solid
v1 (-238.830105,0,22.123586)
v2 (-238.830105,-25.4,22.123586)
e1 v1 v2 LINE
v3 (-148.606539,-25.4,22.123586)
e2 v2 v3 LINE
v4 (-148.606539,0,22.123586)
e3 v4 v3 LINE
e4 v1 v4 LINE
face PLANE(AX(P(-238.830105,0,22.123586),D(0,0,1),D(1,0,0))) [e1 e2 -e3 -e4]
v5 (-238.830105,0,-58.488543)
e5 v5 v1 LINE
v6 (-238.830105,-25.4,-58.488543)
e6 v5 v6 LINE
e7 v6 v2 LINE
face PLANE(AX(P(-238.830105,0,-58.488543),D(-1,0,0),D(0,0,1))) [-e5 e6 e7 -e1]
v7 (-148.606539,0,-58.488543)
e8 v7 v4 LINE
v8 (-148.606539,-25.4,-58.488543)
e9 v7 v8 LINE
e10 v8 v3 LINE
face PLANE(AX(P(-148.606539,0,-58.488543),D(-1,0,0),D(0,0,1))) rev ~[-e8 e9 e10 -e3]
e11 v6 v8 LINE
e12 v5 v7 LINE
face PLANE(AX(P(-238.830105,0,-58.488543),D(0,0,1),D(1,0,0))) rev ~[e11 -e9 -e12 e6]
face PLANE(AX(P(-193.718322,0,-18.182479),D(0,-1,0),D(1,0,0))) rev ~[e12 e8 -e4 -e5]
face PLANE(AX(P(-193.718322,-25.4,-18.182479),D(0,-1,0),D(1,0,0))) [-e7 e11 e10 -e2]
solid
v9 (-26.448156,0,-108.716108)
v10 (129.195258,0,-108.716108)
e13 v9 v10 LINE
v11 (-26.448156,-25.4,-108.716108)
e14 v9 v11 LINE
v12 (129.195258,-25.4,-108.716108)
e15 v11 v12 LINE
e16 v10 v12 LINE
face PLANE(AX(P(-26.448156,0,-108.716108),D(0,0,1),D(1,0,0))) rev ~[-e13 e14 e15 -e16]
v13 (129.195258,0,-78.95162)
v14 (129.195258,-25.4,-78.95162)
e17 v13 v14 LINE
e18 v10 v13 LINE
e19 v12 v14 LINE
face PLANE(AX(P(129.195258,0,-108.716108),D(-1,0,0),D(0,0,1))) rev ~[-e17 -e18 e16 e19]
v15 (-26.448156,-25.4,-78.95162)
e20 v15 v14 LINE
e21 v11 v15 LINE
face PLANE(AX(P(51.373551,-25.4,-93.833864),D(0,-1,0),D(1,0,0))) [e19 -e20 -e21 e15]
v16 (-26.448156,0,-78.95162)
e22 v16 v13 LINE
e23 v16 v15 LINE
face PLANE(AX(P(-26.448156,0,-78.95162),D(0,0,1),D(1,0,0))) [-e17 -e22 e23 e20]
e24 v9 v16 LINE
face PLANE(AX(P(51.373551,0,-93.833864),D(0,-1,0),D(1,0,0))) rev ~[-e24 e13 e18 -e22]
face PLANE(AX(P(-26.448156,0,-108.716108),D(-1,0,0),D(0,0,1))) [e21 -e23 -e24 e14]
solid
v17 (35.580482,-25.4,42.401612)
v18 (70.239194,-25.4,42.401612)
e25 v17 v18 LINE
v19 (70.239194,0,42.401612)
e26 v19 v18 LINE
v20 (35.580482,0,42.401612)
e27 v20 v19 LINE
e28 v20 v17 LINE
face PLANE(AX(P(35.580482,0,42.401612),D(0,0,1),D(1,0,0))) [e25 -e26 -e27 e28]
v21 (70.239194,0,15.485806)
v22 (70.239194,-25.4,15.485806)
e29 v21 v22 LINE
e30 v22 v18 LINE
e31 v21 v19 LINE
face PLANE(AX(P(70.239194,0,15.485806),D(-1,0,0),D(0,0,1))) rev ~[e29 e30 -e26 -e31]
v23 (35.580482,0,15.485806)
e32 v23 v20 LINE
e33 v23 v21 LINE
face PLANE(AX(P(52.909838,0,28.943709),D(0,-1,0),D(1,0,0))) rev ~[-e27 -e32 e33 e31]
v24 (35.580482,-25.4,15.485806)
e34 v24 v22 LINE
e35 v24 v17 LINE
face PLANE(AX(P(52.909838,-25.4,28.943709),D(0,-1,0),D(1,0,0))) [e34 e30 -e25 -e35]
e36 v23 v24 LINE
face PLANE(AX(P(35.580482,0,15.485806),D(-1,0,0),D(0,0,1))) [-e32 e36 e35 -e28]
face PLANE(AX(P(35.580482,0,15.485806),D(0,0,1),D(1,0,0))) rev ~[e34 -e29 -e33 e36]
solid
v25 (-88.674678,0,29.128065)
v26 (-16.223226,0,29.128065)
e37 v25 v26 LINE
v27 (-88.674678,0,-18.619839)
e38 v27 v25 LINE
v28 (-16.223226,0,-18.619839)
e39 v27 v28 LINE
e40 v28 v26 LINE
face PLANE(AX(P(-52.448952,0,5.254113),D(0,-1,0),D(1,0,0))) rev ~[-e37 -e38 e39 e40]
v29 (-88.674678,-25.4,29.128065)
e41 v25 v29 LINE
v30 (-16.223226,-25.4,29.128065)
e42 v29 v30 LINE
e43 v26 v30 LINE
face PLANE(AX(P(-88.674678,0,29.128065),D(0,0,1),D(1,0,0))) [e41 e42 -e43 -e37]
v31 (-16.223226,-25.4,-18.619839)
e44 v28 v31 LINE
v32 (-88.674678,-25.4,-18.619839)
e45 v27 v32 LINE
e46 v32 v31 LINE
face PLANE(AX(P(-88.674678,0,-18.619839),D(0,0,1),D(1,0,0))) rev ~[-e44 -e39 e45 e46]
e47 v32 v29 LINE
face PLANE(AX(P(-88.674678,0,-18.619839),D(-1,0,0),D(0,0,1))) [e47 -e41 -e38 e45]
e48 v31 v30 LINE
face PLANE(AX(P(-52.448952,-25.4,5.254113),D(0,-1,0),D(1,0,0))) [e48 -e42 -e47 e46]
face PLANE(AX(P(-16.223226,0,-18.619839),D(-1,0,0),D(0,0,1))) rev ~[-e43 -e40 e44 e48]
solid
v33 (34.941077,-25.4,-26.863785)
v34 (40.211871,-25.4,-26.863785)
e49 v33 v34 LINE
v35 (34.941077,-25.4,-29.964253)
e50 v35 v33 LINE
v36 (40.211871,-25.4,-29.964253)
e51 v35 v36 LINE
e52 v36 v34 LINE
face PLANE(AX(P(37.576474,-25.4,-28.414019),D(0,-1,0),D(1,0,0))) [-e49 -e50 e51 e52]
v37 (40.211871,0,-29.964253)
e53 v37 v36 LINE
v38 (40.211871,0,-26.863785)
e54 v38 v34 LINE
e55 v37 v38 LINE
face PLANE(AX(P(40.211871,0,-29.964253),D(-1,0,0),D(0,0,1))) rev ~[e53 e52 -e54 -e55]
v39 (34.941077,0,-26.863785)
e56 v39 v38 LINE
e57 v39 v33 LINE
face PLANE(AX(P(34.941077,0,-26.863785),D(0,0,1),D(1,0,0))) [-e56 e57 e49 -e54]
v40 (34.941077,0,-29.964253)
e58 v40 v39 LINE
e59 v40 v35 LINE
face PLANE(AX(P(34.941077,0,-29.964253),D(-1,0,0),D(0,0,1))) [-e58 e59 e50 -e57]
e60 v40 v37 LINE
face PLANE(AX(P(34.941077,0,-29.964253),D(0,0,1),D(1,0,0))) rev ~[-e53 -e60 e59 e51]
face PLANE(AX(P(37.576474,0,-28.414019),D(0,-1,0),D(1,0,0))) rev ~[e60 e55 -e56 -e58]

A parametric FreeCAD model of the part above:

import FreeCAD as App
import Part
import Sketcher
Q = App.Units.Quantity

doc = App.newDocument("Part")
body = doc.addObject("PartDesign::Body", "Body")
body.AllowCompound = True

# Sketch on XZ plane
sketch1 = doc.addObject("Sketcher::SketchObject", "Sketch")
body.addObject(sketch1)
sketch1.AttachmentSupport = (doc.XZ_Plane, [""])
sketch1.MapMode = "FlatFace"
sketch1.addGeometry(Part.LineSegment(App.Vector(-88.7, 29.1, 0), App.Vector(-88.7, -18.6, 0)), False)
sketch1.addGeometry(Part.LineSegment(App.Vector(-88.7, -18.6, 0), App.Vector(-16.2, -18.6, 0)), False)
sketch1.addGeometry(Part.LineSegment(App.Vector(-16.2, -18.6, 0), App.Vector(-16.2, 29.1, 0)), False)
sketch1.addGeometry(Part.LineSegment(App.Vector(-16.2, 29.1, 0), App.Vector(-88.7, 29.1, 0)), False)
sketch1.addGeometry(Part.LineSegment(App.Vector(35.6, 42.4, 0), App.Vector(35.6, 15.5, 0)), False)
sketch1.addGeometry(Part.LineSegment(App.Vector(35.6, 15.5, 0), App.Vector(70.2, 15.5, 0)), False)
sketch1.addGeometry(Part.LineSegment(App.Vector(70.2, 15.5, 0), App.Vector(70.2, 42.4, 0)), False)
sketch1.addGeometry(Part.LineSegment(App.Vector(70.2, 42.4, 0), App.Vector(35.6, 42.4, 0)), False)
sketch1.addGeometry(Part.LineSegment(App.Vector(-238.8, 22.1, 0), App.Vector(-238.8, -58.5, 0)), False)
sketch1.addGeometry(Part.LineSegment(App.Vector(-238.8, -58.5, 0), App.Vector(-148.6, -58.5, 0)), False)
sketch1.addGeometry(Part.LineSegment(App.Vector(-148.6, -58.5, 0), App.Vector(-148.6, 22.1, 0)), False)
sketch1.addGeometry(Part.LineSegment(App.Vector(-148.6, 22.1, 0), App.Vector(-238.8, 22.1, 0)), False)
sketch1.addGeometry(Part.LineSegment(App.Vector(34.9, -26.9, 0), App.Vector(34.9, -30, 0)), False)
sketch1.addGeometry(Part.LineSegment(App.Vector(34.9, -30, 0), App.Vector(40.2, -30, 0)), False)
sketch1.addGeometry(Part.LineSegment(App.Vector(40.2, -30, 0), App.Vector(40.2, -26.9, 0)), False)
sketch1.addGeometry(Part.LineSegment(App.Vector(40.2, -26.9, 0), App.Vector(34.9, -26.9, 0)), False)
sketch1.addGeometry(Part.LineSegment(App.Vector(-26.4, -79, 0), App.Vector(-26.4, -108.7, 0)), False)
sketch1.addGeometry(Part.LineSegment(App.Vector(-26.4, -108.7, 0), App.Vector(129.2, -108.7, 0)), False)
sketch1.addGeometry(Part.LineSegment(App.Vector(129.2, -108.7, 0), App.Vector(129.2, -79, 0)), False)
sketch1.addGeometry(Part.LineSegment(App.Vector(129.2, -79, 0), App.Vector(-26.4, -79, 0)), False)
sketch1.addConstraint(Sketcher.Constraint("Coincident", 0, 2, 1, 1))
sketch1.addConstraint(Sketcher.Constraint("Coincident", 1, 2, 2, 1))
sketch1.addConstraint(Sketcher.Constraint("Coincident", 2, 2, 3, 1))
sketch1.addConstraint(Sketcher.Constraint("Coincident", 3, 2, 0, 1))
sketch1.addConstraint(Sketcher.Constraint("Coincident", 4, 2, 5, 1))
sketch1.addConstraint(Sketcher.Constraint("Coincident", 5, 2, 6, 1))
sketch1.addConstraint(Sketcher.Constraint("Coincident", 6, 2, 7, 1))
sketch1.addConstraint(Sketcher.Constraint("Coincident", 7, 2, 4, 1))
sketch1.addConstraint(Sketcher.Constraint("Coincident", 8, 2, 9, 1))
sketch1.addConstraint(Sketcher.Constraint("Coincident", 9, 2, 10, 1))
sketch1.addConstraint(Sketcher.Constraint("Coincident", 10, 2, 11, 1))
sketch1.addConstraint(Sketcher.Constraint("Coincident", 11, 2, 8, 1))
sketch1.addConstraint(Sketcher.Constraint("Coincident", 12, 2, 13, 1))
sketch1.addConstraint(Sketcher.Constraint("Coincident", 13, 2, 14, 1))
sketch1.addConstraint(Sketcher.Constraint("Coincident", 14, 2, 15, 1))
sketch1.addConstraint(Sketcher.Constraint("Coincident", 15, 2, 12, 1))
sketch1.addConstraint(Sketcher.Constraint("Coincident", 16, 2, 17, 1))
sketch1.addConstraint(Sketcher.Constraint("Coincident", 17, 2, 18, 1))
sketch1.addConstraint(Sketcher.Constraint("Coincident", 18, 2, 19, 1))
sketch1.addConstraint(Sketcher.Constraint("Coincident", 19, 2, 16, 1))
sketch1.addConstraint(Sketcher.Constraint("Vertical", 0))
sketch1.addConstraint(Sketcher.Constraint("Horizontal", 1))
sketch1.addConstraint(Sketcher.Constraint("Vertical", 2))
sketch1.addConstraint(Sketcher.Constraint("Horizontal", 3))
sketch1.addConstraint(Sketcher.Constraint("Vertical", 4))
sketch1.addConstraint(Sketcher.Constraint("Horizontal", 5))
sketch1.addConstraint(Sketcher.Constraint("Vertical", 6))
sketch1.addConstraint(Sketcher.Constraint("Horizontal", 7))
sketch1.addConstraint(Sketcher.Constraint("Vertical", 8))
sketch1.addConstraint(Sketcher.Constraint("Horizontal", 9))
sketch1.addConstraint(Sketcher.Constraint("Vertical", 10))
sketch1.addConstraint(Sketcher.Constraint("Horizontal", 11))
sketch1.addConstraint(Sketcher.Constraint("Vertical", 12))
sketch1.addConstraint(Sketcher.Constraint("Horizontal", 13))
sketch1.addConstraint(Sketcher.Constraint("Vertical", 14))
sketch1.addConstraint(Sketcher.Constraint("Horizontal", 15))
sketch1.addConstraint(Sketcher.Constraint("Vertical", 16))
sketch1.addConstraint(Sketcher.Constraint("Horizontal", 17))
sketch1.addConstraint(Sketcher.Constraint("Vertical", 18))
sketch1.addConstraint(Sketcher.Constraint("Horizontal", 19))
sketch1.addConstraint(Sketcher.Constraint("DistanceX", 5, 1, 5, 2, 34.658712))
sketch1.addConstraint(Sketcher.Constraint("DistanceY", 8, 2, 8, 1, 80.612129))
sketch1.addConstraint(Sketcher.Constraint("DistanceY", 16, 2, 16, 1, 29.764488))
sketch1.addConstraint(Sketcher.Constraint("DistanceX", 1, 1, 1, 2, 72.451453))
sketch1.addConstraint(Sketcher.Constraint("DistanceX", 9, 1, 9, 2, 90.223565))
sketch1.addConstraint(Sketcher.Constraint("DistanceX", 13, 1, 13, 2, 5.270794))
sketch1.addConstraint(Sketcher.Constraint("DistanceX", 17, 1, 17, 2, 155.643415))
sketch1.addConstraint(Sketcher.Constraint("DistanceY", 0, 2, 0, 1, 47.747904))
sketch1.addConstraint(Sketcher.Constraint("DistanceY", 4, 2, 4, 1, 26.915806))
sketch1.addConstraint(Sketcher.Constraint("DistanceY", 12, 2, 12, 1, 3.100468))
sketch1.addConstraint(Sketcher.Constraint("DistanceX", 0, 2, -1, 1, 88.674678))
sketch1.addConstraint(Sketcher.Constraint("DistanceY", 0, 2, -1, 1, 18.619839))
sketch1.addConstraint(Sketcher.Constraint("DistanceX", 9, 2, -1, 1, 148.606539))
sketch1.addConstraint(Sketcher.Constraint("DistanceX", -1, 1, 13, 2, 40.211871))
sketch1.addConstraint(Sketcher.Constraint("DistanceY", 16, 2, -1, 1, 108.716108))
sketch1.addConstraint(Sketcher.Constraint("DistanceX", -1, 1, 17, 2, 129.195258))
sketch1.addConstraint(Sketcher.Constraint("DistanceY", 4, 2, 2, 2, 13.642259))
sketch1.addConstraint(Sketcher.Constraint("DistanceX", 3, 2, 4, 2, 124.255161))
sketch1.addConstraint(Sketcher.Constraint("DistanceY", 8, 2, 3, 2, 87.616608))
sketch1.addConstraint(Sketcher.Constraint("DistanceY", 12, 2, 4, 2, 45.450059))
pad1 = doc.addObject("PartDesign::Pad", "Pad")
body.addObject(pad1)
pad1.Profile = sketch1
pad1.Length = Q("1 in")

doc.recompute()
